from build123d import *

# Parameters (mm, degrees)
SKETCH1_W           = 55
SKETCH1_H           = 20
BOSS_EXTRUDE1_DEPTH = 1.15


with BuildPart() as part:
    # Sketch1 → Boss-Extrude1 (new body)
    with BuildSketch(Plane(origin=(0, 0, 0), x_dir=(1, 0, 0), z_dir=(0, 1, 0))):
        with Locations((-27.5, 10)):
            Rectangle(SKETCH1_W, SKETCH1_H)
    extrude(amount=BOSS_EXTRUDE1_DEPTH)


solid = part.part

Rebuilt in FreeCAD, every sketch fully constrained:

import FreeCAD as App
import Part
import Sketcher
from FreeCAD import Vector

doc = App.newDocument("Part")
body = doc.addObject("PartDesign::Body", "Body")

# Sketch on XZ plane
sketch1 = body.newObject("Sketcher::SketchObject", "Sketch")
sketch1.AttachmentSupport = (doc.getObject("XZ_Plane"), [""])
sketch1.MapMode = "FlatFace"
sketch1.addGeometry([
    Part.LineSegment(Vector(-55, -20, 0), Vector(-55, 0, 0)),
    Part.LineSegment(Vector(-55, 0, 0), Vector(0, 0, 0)),
    Part.LineSegment(Vector(0, 0, 0), Vector(0, -20, 0)),
    Part.LineSegment(Vector(0, -20, 0), Vector(-55, -20, 0)),
], False)
sketch1.addConstraint([
    Sketcher.Constraint("Coincident", 0, 2, 1, 1),
    Sketcher.Constraint("Coincident", 1, 2, 2, 1),
    Sketcher.Constraint("Coincident", 2, 2, 3, 1),
    Sketcher.Constraint("Coincident", 3, 2, 0, 1),
    Sketcher.Constraint("Vertical", 0),
    Sketcher.Constraint("Horizontal", 1),
    Sketcher.Constraint("Vertical", 2),
    Sketcher.Constraint("Horizontal", 3),
    Sketcher.Constraint("Coincident", 1, 2, -1, 1),
    Sketcher.Constraint("DistanceX", 1, 1, 1, 2, 55.0),
    Sketcher.Constraint("DistanceY", 0, 1, 0, 2, 20.0),
])
pad1 = body.newObject("PartDesign::Pad", "Pad")
pad1.Profile = sketch1
pad1.Length = 1.15
pad1.Reversed = True

doc.recompute()
